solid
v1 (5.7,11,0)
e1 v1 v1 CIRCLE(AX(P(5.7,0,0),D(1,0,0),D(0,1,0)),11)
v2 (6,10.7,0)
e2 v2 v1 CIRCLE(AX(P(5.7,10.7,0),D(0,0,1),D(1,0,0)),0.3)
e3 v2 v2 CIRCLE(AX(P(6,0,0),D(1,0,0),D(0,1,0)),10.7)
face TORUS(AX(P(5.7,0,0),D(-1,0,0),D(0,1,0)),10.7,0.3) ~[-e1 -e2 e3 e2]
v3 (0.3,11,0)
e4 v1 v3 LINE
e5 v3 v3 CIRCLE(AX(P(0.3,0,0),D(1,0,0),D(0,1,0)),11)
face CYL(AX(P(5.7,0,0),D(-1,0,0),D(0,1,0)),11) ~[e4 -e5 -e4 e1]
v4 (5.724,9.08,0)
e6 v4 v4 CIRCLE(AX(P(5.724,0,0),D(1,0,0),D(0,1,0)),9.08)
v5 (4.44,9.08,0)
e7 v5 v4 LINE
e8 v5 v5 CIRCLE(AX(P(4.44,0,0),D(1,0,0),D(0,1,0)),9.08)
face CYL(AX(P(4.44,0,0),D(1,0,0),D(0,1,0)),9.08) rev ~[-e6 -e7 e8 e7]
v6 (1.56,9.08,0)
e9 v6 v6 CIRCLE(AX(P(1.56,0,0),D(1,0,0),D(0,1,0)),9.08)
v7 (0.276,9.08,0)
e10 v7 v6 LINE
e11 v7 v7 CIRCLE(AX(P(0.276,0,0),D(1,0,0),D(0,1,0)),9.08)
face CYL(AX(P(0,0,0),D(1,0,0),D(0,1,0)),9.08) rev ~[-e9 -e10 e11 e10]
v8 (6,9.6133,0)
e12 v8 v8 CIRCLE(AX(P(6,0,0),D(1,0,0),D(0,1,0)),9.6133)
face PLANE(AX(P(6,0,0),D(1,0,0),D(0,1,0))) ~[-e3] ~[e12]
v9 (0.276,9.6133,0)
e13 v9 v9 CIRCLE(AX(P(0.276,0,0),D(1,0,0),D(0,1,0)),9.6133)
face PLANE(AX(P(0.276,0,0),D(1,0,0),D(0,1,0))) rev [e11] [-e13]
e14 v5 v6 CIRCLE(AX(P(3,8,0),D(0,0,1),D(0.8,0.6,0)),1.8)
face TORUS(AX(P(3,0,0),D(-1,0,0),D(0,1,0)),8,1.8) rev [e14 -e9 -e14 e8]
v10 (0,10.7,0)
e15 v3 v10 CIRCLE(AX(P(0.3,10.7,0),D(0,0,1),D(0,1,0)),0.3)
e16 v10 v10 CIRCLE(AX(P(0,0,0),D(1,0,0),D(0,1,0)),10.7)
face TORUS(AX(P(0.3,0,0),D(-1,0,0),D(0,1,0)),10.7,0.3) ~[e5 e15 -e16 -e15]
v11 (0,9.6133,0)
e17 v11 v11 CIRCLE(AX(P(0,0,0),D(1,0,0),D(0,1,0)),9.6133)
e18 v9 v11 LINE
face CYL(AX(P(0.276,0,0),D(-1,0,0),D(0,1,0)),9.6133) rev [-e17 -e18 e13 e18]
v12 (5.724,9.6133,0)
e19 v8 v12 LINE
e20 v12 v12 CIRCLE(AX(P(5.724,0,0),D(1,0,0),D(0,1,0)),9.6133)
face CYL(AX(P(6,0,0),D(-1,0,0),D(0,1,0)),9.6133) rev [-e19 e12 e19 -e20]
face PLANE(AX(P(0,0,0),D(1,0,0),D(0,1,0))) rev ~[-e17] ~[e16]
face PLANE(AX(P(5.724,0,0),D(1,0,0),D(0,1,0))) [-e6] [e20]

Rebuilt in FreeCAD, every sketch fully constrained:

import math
import FreeCAD as App
import Part
import Sketcher
from FreeCAD import Vector


def add_polygon(sketch, points):
    """Adds a closed chain of lines whose ends are joined by coincident constraints."""
    first, n = sketch.GeometryCount, len(points)
    for a, b in zip(points, points[1:] + points[:1]):
        sketch.addGeometry(Part.LineSegment(App.Vector(*a, 0), App.Vector(*b, 0)), False)
    for i in range(n):
        sketch.addConstraint(Sketcher.Constraint("Coincident", first + i, 2, first + (i + 1) % n, 1))

doc = App.newDocument("Part")
body = doc.addObject("PartDesign::Body", "Body")

# Sketch on XY plane
sketch1 = doc.addObject("Sketcher::SketchObject", "Sketch")
body.addObject(sketch1)
sketch1.AttachmentSupport = (doc.XY_Plane, [""])
sketch1.MapMode = "FlatFace"
sketch1.addGeometry([
    Part.LineSegment(Vector(0, 10.7, 0), Vector(0, 9.08, 0)),  # 0
    Part.LineSegment(Vector(0, 9.08, 0), Vector(1.56, 9.08, 0)),  # 1
    Part.ArcOfCircle(Part.Circle(Vector(3, 8, 0), Vector(0, 0, 1), 1.8), math.radians(37), math.radians(143)),  # 2
    Part.LineSegment(Vector(4.44, 9.08, 0), Vector(6, 9.08, 0)),  # 3
    Part.LineSegment(Vector(6, 9.08, 0), Vector(6, 10.7, 0)),  # 4
    Part.ArcOfCircle(Part.Circle(Vector(5.7, 10.7, 0), Vector(0, 0, 1), 0.3), math.radians(0), math.radians(90)),  # 5
    Part.LineSegment(Vector(5.7, 11, 0), Vector(0.3, 11, 0)),  # 6
    Part.ArcOfCircle(Part.Circle(Vector(0.3, 10.7, 0), Vector(0, 0, 1), 0.3), math.radians(90), math.radians(180)),  # 7
], False)
sketch1.addConstraint([
    Sketcher.Constraint("Coincident", 0, 2, 1, 1),
    Sketcher.Constraint("Coincident", 1, 2, 2, 2),
    Sketcher.Constraint("Coincident", 2, 1, 3, 1),
    Sketcher.Constraint("Coincident", 3, 2, 4, 1),
    Sketcher.Constraint("Tangent", 4, 2, 5, 1),
    Sketcher.Constraint("Tangent", 5, 2, 6, 1),
    Sketcher.Constraint("Tangent", 6, 2, 7, 1),
    Sketcher.Constraint("Tangent", 7, 2, 0, 1),
    Sketcher.Constraint("Vertical", 0),
    Sketcher.Constraint("Horizontal", 1),
    Sketcher.Constraint("Horizontal", 3),
    Sketcher.Constraint("Vertical", 4),
    Sketcher.Constraint("Horizontal", 6),
    Sketcher.Constraint("Equal", 5, 7),
    Sketcher.Constraint("PointOnObject", 0, 2, -2),
    Sketcher.Constraint("Horizontal", 1, 2, 2, 1),
    Sketcher.Constraint("Equal", 1, 3),
    Sketcher.Constraint("Radius", 2, 1.8),
    Sketcher.Constraint("Radius", 5, 0.3),
    Sketcher.Constraint("DistanceX", 6, 2, 6, 1, 5.4),
    Sketcher.Constraint("DistanceY", -1, 1, 2, 3, 8.0),
    Sketcher.Constraint("DistanceY", -1, 1, 5, 2, 11.0),
    Sketcher.Constraint("DistanceX", 1, 1, 1, 2, 1.56),
])
revolution = doc.addObject("PartDesign::Revolution", "Revolution")
body.addObject(revolution)
revolution.Profile = sketch1
revolution.ReferenceAxis = (sketch1, ["H_Axis"])
revolution.Angle = 360

# Sketch on XY plane
sketch2 = doc.addObject("Sketcher::SketchObject", "Sketch001")
body.addObject(sketch2)
sketch2.AttachmentSupport = (doc.XY_Plane, [""])
sketch2.MapMode = "FlatFace"
add_polygon(sketch2, [(0.28, 9.61), (0, 9.61), (0, 8), (6, 8), (6, 9.61), (5.72, 9.61), (5.72, 8.9), (0.28, 8.9)])  # lines 0-7
sketch2.addConstraint([
    Sketcher.Constraint("Horizontal", 0),
    Sketcher.Constraint("Vertical", 1),
    Sketcher.Constraint("Horizontal", 2),
    Sketcher.Constraint("Vertical", 3),
    Sketcher.Constraint("Horizontal", 4),
    Sketcher.Constraint("Vertical", 5),
    Sketcher.Constraint("Horizontal", 6),
    Sketcher.Constraint("Vertical", 7),
    Sketcher.Constraint("PointOnObject", 0, 2, -2),
    Sketcher.Constraint("Horizontal", 0, 2, 3, 2),
    Sketcher.Constraint("Equal", 0, 4),
    Sketcher.Constraint("DistanceX", 2, 1, 2, 2, 6.0),
    Sketcher.Constraint("DistanceY", -1, 1, 1, 2, 8.0),
    Sketcher.Constraint("DistanceY", -1, 1, 5, 2, 8.9),
    Sketcher.Constraint("DistanceX", 0, 2, 0, 1, 0.276),
    Sketcher.Constraint("DistanceY", 1, 2, 1, 1, 1.6133),
])
groove = doc.addObject("PartDesign::Groove", "Groove")
body.addObject(groove)
groove.Profile = sketch2
groove.ReferenceAxis = (sketch2, ["H_Axis"])
groove.Angle = 360

doc.recompute()
